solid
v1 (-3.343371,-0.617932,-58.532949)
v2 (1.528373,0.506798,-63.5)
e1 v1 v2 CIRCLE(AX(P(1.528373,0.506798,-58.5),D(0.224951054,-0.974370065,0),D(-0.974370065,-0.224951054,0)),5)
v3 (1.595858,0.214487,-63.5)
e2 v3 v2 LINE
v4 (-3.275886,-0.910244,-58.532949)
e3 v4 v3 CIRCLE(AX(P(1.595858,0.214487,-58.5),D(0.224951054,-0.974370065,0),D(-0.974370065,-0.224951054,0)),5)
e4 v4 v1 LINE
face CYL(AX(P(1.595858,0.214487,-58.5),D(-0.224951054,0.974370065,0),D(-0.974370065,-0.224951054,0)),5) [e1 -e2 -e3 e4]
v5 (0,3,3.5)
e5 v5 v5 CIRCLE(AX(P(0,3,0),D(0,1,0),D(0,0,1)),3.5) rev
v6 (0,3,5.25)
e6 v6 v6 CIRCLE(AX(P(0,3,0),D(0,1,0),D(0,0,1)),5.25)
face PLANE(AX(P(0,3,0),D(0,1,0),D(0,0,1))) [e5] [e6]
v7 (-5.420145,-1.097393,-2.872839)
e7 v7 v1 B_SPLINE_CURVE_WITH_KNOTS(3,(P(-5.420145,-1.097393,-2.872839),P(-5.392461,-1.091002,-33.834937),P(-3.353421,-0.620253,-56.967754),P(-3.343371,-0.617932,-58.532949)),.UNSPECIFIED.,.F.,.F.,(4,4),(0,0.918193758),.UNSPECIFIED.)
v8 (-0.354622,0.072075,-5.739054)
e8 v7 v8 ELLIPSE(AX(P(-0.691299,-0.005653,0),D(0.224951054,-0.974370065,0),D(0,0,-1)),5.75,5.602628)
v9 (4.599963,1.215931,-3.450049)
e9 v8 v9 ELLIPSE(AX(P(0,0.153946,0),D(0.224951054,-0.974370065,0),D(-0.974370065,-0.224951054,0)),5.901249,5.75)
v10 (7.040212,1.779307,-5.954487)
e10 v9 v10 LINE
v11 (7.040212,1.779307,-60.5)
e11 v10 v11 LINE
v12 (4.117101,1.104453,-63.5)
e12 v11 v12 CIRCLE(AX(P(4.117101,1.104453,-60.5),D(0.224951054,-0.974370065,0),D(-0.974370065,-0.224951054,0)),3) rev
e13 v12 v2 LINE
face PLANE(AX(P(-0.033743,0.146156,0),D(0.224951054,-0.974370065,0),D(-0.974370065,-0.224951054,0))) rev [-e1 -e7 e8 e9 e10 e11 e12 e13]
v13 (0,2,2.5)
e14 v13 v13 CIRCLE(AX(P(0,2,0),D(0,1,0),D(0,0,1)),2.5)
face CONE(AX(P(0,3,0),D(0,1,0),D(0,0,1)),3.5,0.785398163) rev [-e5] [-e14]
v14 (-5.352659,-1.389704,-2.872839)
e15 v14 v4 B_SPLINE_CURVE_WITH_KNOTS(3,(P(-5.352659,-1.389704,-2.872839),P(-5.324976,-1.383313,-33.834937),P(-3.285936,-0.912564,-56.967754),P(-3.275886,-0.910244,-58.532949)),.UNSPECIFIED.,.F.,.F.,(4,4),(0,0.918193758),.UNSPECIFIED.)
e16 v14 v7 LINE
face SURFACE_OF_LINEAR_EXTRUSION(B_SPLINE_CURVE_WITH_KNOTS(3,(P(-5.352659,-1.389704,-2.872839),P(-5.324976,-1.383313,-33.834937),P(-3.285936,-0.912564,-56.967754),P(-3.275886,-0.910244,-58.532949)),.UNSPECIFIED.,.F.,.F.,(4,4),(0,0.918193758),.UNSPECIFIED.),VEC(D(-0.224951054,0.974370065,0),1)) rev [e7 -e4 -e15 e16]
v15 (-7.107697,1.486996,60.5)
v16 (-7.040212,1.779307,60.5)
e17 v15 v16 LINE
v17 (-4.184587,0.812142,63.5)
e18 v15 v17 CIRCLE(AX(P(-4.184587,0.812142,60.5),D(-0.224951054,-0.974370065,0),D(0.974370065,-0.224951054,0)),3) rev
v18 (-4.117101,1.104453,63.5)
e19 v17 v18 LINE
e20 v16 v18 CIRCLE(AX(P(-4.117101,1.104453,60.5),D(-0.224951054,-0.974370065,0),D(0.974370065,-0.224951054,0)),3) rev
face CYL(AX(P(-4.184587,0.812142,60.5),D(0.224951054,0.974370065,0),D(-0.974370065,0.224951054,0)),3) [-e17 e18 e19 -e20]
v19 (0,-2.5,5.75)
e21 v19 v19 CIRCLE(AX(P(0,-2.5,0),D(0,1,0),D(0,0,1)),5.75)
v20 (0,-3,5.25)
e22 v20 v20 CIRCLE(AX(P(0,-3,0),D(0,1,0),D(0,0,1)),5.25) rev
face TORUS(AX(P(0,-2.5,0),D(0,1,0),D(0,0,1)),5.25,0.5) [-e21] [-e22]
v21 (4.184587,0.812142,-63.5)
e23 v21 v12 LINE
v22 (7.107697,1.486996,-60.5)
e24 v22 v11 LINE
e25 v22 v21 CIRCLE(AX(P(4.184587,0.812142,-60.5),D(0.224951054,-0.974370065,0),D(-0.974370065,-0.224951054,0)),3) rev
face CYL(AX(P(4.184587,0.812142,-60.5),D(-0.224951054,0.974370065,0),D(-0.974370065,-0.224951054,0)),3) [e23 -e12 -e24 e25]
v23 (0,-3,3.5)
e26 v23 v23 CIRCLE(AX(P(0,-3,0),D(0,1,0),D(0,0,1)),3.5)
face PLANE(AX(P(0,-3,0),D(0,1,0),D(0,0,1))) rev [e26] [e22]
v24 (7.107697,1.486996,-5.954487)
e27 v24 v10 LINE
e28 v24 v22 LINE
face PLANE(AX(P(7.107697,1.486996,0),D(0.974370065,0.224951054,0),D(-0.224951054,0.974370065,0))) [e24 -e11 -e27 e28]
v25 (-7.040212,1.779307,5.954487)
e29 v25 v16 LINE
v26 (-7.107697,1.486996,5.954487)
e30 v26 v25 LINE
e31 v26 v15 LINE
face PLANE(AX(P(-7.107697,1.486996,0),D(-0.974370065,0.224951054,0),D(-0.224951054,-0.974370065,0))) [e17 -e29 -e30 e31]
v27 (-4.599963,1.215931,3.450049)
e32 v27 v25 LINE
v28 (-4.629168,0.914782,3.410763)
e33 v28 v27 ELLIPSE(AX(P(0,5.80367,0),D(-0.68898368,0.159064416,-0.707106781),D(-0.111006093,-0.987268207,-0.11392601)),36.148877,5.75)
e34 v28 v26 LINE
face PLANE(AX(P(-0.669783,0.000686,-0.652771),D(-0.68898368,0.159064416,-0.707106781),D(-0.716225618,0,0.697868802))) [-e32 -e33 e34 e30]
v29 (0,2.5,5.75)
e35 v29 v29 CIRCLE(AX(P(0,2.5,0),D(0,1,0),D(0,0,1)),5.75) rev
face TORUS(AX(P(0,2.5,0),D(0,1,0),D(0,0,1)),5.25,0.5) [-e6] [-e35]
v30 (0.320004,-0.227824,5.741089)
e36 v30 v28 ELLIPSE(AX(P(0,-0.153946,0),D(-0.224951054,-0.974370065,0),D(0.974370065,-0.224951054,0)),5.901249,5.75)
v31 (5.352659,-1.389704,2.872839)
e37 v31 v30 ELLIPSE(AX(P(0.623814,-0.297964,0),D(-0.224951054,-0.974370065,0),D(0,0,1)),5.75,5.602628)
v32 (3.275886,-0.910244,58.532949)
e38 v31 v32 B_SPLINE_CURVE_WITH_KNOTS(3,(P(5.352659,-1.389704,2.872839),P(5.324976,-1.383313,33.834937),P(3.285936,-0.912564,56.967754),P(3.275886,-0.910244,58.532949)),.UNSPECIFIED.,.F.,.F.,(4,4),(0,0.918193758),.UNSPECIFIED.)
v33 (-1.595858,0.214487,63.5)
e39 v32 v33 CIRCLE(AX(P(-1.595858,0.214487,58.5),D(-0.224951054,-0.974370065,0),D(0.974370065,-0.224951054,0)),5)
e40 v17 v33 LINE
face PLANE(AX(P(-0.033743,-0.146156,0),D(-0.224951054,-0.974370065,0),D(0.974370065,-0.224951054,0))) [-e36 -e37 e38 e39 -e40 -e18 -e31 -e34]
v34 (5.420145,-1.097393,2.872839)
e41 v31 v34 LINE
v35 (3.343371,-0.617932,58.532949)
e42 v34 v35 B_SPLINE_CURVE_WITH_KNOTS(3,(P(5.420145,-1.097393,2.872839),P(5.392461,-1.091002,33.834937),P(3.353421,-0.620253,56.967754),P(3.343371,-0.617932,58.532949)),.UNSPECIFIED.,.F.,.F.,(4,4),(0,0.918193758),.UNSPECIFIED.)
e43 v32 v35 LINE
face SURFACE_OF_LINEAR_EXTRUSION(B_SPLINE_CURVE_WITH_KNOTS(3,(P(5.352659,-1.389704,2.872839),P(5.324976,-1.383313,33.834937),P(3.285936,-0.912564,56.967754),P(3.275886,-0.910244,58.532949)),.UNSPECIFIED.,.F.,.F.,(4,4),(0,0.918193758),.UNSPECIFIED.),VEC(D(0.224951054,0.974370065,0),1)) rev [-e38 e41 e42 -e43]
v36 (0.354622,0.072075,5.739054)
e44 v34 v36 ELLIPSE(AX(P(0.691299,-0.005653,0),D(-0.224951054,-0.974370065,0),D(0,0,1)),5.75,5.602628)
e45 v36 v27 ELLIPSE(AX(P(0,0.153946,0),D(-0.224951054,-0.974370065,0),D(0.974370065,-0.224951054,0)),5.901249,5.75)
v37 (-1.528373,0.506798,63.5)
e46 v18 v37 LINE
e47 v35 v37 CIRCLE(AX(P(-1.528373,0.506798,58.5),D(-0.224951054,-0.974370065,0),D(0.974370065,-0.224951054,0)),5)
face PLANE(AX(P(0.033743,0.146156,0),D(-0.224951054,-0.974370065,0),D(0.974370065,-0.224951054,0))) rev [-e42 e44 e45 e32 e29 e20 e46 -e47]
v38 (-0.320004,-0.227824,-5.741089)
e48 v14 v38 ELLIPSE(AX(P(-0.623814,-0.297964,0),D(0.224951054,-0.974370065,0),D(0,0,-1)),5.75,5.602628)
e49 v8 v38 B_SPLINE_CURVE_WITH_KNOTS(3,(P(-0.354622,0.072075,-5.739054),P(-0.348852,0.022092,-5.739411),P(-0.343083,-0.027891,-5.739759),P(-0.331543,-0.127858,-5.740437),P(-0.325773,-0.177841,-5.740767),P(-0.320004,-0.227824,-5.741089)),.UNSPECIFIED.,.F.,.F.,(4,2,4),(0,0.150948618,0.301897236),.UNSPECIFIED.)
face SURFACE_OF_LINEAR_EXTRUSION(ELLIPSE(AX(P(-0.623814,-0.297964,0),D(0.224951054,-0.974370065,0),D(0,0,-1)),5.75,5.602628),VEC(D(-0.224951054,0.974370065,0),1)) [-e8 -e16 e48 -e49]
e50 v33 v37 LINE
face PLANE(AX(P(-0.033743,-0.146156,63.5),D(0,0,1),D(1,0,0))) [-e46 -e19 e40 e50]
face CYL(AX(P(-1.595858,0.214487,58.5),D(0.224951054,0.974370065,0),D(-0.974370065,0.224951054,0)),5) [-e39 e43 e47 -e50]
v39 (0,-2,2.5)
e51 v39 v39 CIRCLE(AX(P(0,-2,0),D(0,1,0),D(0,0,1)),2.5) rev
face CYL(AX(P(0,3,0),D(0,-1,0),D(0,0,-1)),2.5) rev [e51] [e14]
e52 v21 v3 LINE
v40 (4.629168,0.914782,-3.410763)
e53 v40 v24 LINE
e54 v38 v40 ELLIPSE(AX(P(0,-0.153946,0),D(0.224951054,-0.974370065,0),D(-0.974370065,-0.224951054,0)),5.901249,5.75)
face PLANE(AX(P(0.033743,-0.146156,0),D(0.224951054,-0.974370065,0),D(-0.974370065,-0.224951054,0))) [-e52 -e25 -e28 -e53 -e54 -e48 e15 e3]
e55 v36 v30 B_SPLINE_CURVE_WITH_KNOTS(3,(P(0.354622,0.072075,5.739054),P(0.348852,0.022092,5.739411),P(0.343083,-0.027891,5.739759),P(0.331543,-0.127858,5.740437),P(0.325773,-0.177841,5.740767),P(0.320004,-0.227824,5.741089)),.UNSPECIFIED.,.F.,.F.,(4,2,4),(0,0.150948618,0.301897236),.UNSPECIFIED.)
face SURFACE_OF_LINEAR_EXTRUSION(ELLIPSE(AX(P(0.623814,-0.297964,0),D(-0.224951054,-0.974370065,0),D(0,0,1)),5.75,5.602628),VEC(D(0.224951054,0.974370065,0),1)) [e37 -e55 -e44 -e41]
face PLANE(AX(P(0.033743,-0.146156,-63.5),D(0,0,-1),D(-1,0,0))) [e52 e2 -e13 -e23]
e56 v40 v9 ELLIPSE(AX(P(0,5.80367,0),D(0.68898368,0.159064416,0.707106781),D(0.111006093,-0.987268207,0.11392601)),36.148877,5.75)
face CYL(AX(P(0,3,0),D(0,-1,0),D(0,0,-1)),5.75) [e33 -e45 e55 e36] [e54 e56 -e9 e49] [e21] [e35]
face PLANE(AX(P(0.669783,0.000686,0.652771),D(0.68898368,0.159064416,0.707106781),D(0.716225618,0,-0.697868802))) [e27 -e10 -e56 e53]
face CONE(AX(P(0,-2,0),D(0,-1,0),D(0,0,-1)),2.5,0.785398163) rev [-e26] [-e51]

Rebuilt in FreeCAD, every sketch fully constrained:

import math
import FreeCAD as App
import Part
import Sketcher
Q = App.Units.Quantity


def edges_at(feature, points):
    """Names of the edges that pass closest to the given points."""
    edges = feature.Shape.Edges
    near = lambda p: min(range(len(edges)), key=lambda i: edges[i].distToShape(Part.Vertex(*p))[0])
    return sorted({f"Edge{near(p) + 1}" for p in points})

doc = App.newDocument("Part")
body = doc.addObject("PartDesign::Body", "Body")

# Sketch on XZ plane
sketch1 = body.newObject("Sketcher::SketchObject", "Sketch")
sketch1.AttachmentSupport = (doc.getObject("XZ_Plane"), [""])
sketch1.MapMode = "FlatFace"
sketch1.addGeometry(Part.Circle(App.Vector(0, 0, 0), App.Vector(0, 0, 1), 6), False)
sketch1.addConstraint(Sketcher.Constraint("Coincident", 0, 3, -1, 1))
sketch1.addConstraint(Sketcher.Constraint("Diameter", 0, Q("11.5 mm")))
pad1 = body.newObject("PartDesign::Pad", "Pad")
pad1.Profile = sketch1
pad1.Length = 6
pad1.Midplane = True

# Sketch on an angled plane
sketch2 = body.newObject("Sketcher::SketchObject", "Sketch001")
sketch2.Placement = App.Placement(App.Vector(0, 0, 0), App.Rotation(App.Vector(0.974370065, -0.224951054, 0), App.Vector(0, 0, 1), App.Vector(-0.224951054, -0.974370065, 0), "ZXY"))
sketch2.addGeometry(Part.LineSegment(App.Vector(-7.260028, 5.954487, 0), App.Vector(-4.17838, 2.872839, 0)), False)
sketch2.addGeometry(Part.BSplineCurve([App.Vector(5.528087, 2.872839, 0), App.Vector(4.968035, 3.869392, 0), App.Vector(4.117447, 4.802885, 0), App.Vector(3.00868, 5.4602, 0), App.Vector(1.7958, 5.75, 0), App.Vector(-0.446094, 5.75, 0), App.Vector(-1.658974, 5.4602, 0), App.Vector(-2.767741, 4.802885, 0), App.Vector(-3.618328, 3.869392, 0), App.Vector(-4.17838, 2.872839, 0)], [6, 4, 6], [5.235553758, 6.283185307, 7.330816856], False, 5, [1, 1, 0.992808687, 0.992808687, 1, 1, 0.992808687, 0.992808687, 1, 1], False), False)
sketch2.addGeometry(Part.BSplineCurve([App.Vector(5.528087, 2.872839, 0), App.Vector(5.499675, 33.834937, 0), App.Vector(3.407, 56.967754, 0), App.Vector(3.396686, 58.532949, 0)], [4, 4], [0, 0.918193758], False, 3, [1, 1, 1, 1], False), False)
sketch2.addGeometry(Part.ArcOfCircle(Part.Circle(App.Vector(-1.603206, 58.5, 0), App.Vector(0, 0, 1), 5), math.radians(0.377565), math.radians(90)), False)
sketch2.addGeometry(Part.LineSegment(App.Vector(-1.603206, 63.5, 0), App.Vector(-4.260028, 63.5, 0)), False)
sketch2.addGeometry(Part.ArcOfCircle(Part.Circle(App.Vector(-4.260028, 60.5, 0), App.Vector(0, 0, 1), 3), math.radians(90), math.radians(180)), False)
sketch2.addGeometry(Part.LineSegment(App.Vector(-7.260028, 60.5, 0), App.Vector(-7.260028, 5.954487, 0)), False)
sketch2.addConstraint(Sketcher.Constraint("Block", 1))
sketch2.addConstraint(Sketcher.Constraint("Block", 2))
sketch2.addConstraint(Sketcher.Constraint("Coincident", 0, 2, 1, 2))
sketch2.addConstraint(Sketcher.Constraint("Coincident", 2, 2, 3, 1))
sketch2.addConstraint(Sketcher.Constraint("Tangent", 3, 2, 4, 1))
sketch2.addConstraint(Sketcher.Constraint("Tangent", 4, 2, 5, 1))
sketch2.addConstraint(Sketcher.Constraint("Tangent", 5, 2, 6, 1))
sketch2.addConstraint(Sketcher.Constraint("Coincident", 6, 2, 0, 1))
sketch2.addConstraint(Sketcher.Constraint("Horizontal", 4))
sketch2.addConstraint(Sketcher.Constraint("Vertical", 6))
sketch2.addConstraint(Sketcher.Constraint("Radius", 3, Q("5 mm")))
sketch2.addConstraint(Sketcher.Constraint("Radius", 5, Q("3 mm")))
sketch2.addConstraint(Sketcher.Constraint("Angle", 0, Q("-45 deg")))
sketch2.addConstraint(Sketcher.Constraint("DistanceY", -1, 1, 3, 3, Q("58.5 mm")))
sketch2.addConstraint(Sketcher.Constraint("Distance", 0, Q("4.358109 mm")))
pad2 = body.newObject("PartDesign::Pad", "Pad001")
pad2.Profile = sketch2
pad2.Length = 0.3
pad2.Midplane = True
doc.recompute()

polarpattern = body.newObject("PartDesign::PolarPattern", "PolarPattern")
polarpattern.Originals = [pad2]
polarpattern.Axis = (doc.getObject("Y_Axis"), [""])
polarpattern.Angle = 360
polarpattern.Occurrences = 2
body.Tip = polarpattern

# Sketch on XZ plane
sketch3 = body.newObject("Sketcher::SketchObject", "Sketch002")
sketch3.AttachmentSupport = (doc.getObject("XZ_Plane"), [""])
sketch3.MapMode = "FlatFace"
sketch3.AttachmentOffset = App.Placement(App.Vector(0, 0, 3), App.Rotation())
sketch3.addGeometry(Part.Circle(App.Vector(0, 0, 0), App.Vector(0, 0, 1), 2.5), False)
sketch3.addConstraint(Sketcher.Constraint("Coincident", 0, 3, -1, 1))
sketch3.addConstraint(Sketcher.Constraint("Diameter", 0, Q("5 mm")))
pocket1 = body.newObject("PartDesign::Pocket", "Pocket")
pocket1.Profile = sketch3
pocket1.Type = "ThroughAll"
doc.recompute()

fillet = body.newObject("PartDesign::Fillet", "Fillet")
fillet.Base = (pocket1, edges_at(pocket1, [(-5.75, -3, 0), (-5.75, 3, 0)]))
fillet.Radius = 0.5
doc.recompute()

chamfer = body.newObject("PartDesign::Chamfer", "Chamfer")
chamfer.Base = (fillet, edges_at(fillet, [(-2.5, 3, 0), (-2.5, -3, 0)]))
chamfer.Size = 1

doc.recompute()
